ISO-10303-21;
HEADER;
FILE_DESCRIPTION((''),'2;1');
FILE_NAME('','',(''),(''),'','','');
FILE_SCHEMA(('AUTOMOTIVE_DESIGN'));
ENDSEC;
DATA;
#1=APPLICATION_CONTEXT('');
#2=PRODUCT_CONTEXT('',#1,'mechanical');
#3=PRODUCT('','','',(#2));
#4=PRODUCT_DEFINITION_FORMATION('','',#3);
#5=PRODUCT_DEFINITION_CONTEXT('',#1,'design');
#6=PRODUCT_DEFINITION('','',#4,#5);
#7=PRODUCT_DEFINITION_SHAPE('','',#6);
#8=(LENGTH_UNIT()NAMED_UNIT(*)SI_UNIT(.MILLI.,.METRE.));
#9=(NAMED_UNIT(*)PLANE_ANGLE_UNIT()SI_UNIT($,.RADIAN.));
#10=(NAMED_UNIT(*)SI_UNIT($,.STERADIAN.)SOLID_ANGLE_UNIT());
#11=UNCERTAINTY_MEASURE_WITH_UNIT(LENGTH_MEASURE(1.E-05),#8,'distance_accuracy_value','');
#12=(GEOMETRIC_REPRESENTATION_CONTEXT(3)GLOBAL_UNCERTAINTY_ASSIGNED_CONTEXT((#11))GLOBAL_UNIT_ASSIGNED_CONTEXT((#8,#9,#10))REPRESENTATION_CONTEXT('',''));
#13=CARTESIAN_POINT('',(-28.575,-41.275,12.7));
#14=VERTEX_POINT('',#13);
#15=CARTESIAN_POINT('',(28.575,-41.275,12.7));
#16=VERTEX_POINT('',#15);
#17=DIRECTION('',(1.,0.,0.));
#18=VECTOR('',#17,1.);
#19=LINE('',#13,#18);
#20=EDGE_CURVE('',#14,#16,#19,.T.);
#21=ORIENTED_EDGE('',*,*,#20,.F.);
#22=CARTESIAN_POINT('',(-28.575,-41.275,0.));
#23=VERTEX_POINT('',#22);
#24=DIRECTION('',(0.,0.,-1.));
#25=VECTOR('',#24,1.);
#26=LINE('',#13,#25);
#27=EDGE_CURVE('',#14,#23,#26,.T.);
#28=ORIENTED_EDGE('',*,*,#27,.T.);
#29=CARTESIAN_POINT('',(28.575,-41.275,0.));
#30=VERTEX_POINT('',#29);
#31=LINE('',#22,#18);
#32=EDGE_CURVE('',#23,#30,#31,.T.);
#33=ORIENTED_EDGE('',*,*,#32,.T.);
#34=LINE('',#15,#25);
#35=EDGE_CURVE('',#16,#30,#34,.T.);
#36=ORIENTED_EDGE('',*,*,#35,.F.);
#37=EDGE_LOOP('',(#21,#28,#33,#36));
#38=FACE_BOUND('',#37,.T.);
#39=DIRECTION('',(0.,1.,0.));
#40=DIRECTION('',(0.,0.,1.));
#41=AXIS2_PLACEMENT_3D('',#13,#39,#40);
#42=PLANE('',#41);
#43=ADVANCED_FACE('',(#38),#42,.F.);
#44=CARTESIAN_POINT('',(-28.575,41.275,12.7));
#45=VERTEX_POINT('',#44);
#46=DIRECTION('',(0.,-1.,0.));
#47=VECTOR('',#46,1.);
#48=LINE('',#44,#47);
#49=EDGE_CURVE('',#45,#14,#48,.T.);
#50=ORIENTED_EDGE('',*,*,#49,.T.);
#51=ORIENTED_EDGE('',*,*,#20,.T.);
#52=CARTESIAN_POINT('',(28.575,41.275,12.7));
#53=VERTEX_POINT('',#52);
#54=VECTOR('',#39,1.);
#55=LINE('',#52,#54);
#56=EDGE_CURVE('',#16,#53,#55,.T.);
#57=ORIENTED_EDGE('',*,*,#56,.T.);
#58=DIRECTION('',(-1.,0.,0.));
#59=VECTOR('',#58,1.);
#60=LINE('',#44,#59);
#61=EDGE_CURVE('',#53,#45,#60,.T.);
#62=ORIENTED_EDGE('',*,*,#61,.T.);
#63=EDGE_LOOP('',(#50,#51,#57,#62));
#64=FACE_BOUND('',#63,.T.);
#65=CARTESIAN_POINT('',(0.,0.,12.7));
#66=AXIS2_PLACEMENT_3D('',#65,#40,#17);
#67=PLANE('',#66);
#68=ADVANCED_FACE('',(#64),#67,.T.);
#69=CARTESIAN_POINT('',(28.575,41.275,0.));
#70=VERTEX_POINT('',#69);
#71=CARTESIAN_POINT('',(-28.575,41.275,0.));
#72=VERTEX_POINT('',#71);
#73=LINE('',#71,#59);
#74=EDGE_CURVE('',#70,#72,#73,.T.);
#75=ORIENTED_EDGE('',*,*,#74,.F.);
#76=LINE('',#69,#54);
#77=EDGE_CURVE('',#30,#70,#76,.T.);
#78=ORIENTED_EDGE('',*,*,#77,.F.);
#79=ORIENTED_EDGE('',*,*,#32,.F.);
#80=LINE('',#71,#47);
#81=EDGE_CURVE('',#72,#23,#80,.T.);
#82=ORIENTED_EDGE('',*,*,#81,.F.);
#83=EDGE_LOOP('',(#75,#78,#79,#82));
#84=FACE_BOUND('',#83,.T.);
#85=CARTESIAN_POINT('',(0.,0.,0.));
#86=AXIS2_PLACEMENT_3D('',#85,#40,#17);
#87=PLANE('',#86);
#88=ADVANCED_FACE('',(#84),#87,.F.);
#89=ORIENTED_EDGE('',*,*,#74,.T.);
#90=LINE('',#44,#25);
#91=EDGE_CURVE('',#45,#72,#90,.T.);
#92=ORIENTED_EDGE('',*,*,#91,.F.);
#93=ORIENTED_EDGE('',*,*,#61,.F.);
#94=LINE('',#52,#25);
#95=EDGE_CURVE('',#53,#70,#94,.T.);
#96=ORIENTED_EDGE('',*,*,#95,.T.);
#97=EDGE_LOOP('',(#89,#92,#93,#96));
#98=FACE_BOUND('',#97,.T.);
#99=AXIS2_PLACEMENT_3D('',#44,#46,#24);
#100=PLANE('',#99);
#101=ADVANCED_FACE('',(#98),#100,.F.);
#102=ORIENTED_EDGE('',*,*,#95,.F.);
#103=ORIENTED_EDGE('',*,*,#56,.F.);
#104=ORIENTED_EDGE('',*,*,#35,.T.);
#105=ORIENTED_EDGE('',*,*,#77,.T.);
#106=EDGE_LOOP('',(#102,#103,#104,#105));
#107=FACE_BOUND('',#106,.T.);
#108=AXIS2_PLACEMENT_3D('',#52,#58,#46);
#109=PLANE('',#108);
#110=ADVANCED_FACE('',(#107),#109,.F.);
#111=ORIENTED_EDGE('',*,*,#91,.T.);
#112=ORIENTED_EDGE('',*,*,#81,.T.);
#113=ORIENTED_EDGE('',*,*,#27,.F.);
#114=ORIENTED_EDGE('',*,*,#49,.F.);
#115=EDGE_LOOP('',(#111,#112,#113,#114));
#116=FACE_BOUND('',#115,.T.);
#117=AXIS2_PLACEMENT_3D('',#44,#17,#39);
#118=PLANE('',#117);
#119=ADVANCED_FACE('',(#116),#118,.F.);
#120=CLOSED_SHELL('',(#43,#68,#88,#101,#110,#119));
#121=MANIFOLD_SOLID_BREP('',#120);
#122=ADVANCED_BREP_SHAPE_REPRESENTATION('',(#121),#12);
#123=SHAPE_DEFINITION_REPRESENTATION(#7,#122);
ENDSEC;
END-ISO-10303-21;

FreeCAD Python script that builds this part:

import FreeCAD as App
import Part
import Sketcher

V = App.Vector
Q = App.Units.Quantity


def add_polygon(sketch, points):
    """Adds a closed chain of lines whose ends are joined by coincident constraints."""
    first, n = sketch.GeometryCount, len(points)
    for a, b in zip(points, points[1:] + points[:1]):
        sketch.addGeometry(Part.LineSegment(App.Vector(*a, 0), App.Vector(*b, 0)), False)
    for i in range(n):
        sketch.addConstraint(Sketcher.Constraint("Coincident", first + i, 2, first + (i + 1) % n, 1))

doc = App.newDocument("Part")
body = doc.addObject("PartDesign::Body", "Body")

sketch1 = doc.addObject("Sketcher::SketchObject", "Sketch")
body.addObject(sketch1)
sketch1.AttachmentSupport = (doc.XY_Plane, [""])
sketch1.MapMode = "FlatFace"
add_polygon(sketch1, [(-28.575, 41.275), (-28.575, -41.275), (28.575, -41.275), (28.575, 41.275)])
sketch1.addConstraint(Sketcher.Constraint("Vertical", 0))
sketch1.addConstraint(Sketcher.Constraint("Horizontal", 1))
sketch1.addConstraint(Sketcher.Constraint("Vertical", 2))
sketch1.addConstraint(Sketcher.Constraint("Horizontal", 3))
sketch1.addConstraint(Sketcher.Constraint("Symmetric", 0, 2, 2, 2, -1, 1))
sketch1.addConstraint(Sketcher.Constraint("DistanceX", 1, 1, 1, 2, Q("2.25 in")))
sketch1.addConstraint(Sketcher.Constraint("DistanceY", 0, 2, 0, 1, Q("3.25 in")))
pad1 = doc.addObject("PartDesign::Pad", "Pad")
body.addObject(pad1)
pad1.Profile = sketch1
pad1.Length = Q("0.5 in")

doc.recompute()
